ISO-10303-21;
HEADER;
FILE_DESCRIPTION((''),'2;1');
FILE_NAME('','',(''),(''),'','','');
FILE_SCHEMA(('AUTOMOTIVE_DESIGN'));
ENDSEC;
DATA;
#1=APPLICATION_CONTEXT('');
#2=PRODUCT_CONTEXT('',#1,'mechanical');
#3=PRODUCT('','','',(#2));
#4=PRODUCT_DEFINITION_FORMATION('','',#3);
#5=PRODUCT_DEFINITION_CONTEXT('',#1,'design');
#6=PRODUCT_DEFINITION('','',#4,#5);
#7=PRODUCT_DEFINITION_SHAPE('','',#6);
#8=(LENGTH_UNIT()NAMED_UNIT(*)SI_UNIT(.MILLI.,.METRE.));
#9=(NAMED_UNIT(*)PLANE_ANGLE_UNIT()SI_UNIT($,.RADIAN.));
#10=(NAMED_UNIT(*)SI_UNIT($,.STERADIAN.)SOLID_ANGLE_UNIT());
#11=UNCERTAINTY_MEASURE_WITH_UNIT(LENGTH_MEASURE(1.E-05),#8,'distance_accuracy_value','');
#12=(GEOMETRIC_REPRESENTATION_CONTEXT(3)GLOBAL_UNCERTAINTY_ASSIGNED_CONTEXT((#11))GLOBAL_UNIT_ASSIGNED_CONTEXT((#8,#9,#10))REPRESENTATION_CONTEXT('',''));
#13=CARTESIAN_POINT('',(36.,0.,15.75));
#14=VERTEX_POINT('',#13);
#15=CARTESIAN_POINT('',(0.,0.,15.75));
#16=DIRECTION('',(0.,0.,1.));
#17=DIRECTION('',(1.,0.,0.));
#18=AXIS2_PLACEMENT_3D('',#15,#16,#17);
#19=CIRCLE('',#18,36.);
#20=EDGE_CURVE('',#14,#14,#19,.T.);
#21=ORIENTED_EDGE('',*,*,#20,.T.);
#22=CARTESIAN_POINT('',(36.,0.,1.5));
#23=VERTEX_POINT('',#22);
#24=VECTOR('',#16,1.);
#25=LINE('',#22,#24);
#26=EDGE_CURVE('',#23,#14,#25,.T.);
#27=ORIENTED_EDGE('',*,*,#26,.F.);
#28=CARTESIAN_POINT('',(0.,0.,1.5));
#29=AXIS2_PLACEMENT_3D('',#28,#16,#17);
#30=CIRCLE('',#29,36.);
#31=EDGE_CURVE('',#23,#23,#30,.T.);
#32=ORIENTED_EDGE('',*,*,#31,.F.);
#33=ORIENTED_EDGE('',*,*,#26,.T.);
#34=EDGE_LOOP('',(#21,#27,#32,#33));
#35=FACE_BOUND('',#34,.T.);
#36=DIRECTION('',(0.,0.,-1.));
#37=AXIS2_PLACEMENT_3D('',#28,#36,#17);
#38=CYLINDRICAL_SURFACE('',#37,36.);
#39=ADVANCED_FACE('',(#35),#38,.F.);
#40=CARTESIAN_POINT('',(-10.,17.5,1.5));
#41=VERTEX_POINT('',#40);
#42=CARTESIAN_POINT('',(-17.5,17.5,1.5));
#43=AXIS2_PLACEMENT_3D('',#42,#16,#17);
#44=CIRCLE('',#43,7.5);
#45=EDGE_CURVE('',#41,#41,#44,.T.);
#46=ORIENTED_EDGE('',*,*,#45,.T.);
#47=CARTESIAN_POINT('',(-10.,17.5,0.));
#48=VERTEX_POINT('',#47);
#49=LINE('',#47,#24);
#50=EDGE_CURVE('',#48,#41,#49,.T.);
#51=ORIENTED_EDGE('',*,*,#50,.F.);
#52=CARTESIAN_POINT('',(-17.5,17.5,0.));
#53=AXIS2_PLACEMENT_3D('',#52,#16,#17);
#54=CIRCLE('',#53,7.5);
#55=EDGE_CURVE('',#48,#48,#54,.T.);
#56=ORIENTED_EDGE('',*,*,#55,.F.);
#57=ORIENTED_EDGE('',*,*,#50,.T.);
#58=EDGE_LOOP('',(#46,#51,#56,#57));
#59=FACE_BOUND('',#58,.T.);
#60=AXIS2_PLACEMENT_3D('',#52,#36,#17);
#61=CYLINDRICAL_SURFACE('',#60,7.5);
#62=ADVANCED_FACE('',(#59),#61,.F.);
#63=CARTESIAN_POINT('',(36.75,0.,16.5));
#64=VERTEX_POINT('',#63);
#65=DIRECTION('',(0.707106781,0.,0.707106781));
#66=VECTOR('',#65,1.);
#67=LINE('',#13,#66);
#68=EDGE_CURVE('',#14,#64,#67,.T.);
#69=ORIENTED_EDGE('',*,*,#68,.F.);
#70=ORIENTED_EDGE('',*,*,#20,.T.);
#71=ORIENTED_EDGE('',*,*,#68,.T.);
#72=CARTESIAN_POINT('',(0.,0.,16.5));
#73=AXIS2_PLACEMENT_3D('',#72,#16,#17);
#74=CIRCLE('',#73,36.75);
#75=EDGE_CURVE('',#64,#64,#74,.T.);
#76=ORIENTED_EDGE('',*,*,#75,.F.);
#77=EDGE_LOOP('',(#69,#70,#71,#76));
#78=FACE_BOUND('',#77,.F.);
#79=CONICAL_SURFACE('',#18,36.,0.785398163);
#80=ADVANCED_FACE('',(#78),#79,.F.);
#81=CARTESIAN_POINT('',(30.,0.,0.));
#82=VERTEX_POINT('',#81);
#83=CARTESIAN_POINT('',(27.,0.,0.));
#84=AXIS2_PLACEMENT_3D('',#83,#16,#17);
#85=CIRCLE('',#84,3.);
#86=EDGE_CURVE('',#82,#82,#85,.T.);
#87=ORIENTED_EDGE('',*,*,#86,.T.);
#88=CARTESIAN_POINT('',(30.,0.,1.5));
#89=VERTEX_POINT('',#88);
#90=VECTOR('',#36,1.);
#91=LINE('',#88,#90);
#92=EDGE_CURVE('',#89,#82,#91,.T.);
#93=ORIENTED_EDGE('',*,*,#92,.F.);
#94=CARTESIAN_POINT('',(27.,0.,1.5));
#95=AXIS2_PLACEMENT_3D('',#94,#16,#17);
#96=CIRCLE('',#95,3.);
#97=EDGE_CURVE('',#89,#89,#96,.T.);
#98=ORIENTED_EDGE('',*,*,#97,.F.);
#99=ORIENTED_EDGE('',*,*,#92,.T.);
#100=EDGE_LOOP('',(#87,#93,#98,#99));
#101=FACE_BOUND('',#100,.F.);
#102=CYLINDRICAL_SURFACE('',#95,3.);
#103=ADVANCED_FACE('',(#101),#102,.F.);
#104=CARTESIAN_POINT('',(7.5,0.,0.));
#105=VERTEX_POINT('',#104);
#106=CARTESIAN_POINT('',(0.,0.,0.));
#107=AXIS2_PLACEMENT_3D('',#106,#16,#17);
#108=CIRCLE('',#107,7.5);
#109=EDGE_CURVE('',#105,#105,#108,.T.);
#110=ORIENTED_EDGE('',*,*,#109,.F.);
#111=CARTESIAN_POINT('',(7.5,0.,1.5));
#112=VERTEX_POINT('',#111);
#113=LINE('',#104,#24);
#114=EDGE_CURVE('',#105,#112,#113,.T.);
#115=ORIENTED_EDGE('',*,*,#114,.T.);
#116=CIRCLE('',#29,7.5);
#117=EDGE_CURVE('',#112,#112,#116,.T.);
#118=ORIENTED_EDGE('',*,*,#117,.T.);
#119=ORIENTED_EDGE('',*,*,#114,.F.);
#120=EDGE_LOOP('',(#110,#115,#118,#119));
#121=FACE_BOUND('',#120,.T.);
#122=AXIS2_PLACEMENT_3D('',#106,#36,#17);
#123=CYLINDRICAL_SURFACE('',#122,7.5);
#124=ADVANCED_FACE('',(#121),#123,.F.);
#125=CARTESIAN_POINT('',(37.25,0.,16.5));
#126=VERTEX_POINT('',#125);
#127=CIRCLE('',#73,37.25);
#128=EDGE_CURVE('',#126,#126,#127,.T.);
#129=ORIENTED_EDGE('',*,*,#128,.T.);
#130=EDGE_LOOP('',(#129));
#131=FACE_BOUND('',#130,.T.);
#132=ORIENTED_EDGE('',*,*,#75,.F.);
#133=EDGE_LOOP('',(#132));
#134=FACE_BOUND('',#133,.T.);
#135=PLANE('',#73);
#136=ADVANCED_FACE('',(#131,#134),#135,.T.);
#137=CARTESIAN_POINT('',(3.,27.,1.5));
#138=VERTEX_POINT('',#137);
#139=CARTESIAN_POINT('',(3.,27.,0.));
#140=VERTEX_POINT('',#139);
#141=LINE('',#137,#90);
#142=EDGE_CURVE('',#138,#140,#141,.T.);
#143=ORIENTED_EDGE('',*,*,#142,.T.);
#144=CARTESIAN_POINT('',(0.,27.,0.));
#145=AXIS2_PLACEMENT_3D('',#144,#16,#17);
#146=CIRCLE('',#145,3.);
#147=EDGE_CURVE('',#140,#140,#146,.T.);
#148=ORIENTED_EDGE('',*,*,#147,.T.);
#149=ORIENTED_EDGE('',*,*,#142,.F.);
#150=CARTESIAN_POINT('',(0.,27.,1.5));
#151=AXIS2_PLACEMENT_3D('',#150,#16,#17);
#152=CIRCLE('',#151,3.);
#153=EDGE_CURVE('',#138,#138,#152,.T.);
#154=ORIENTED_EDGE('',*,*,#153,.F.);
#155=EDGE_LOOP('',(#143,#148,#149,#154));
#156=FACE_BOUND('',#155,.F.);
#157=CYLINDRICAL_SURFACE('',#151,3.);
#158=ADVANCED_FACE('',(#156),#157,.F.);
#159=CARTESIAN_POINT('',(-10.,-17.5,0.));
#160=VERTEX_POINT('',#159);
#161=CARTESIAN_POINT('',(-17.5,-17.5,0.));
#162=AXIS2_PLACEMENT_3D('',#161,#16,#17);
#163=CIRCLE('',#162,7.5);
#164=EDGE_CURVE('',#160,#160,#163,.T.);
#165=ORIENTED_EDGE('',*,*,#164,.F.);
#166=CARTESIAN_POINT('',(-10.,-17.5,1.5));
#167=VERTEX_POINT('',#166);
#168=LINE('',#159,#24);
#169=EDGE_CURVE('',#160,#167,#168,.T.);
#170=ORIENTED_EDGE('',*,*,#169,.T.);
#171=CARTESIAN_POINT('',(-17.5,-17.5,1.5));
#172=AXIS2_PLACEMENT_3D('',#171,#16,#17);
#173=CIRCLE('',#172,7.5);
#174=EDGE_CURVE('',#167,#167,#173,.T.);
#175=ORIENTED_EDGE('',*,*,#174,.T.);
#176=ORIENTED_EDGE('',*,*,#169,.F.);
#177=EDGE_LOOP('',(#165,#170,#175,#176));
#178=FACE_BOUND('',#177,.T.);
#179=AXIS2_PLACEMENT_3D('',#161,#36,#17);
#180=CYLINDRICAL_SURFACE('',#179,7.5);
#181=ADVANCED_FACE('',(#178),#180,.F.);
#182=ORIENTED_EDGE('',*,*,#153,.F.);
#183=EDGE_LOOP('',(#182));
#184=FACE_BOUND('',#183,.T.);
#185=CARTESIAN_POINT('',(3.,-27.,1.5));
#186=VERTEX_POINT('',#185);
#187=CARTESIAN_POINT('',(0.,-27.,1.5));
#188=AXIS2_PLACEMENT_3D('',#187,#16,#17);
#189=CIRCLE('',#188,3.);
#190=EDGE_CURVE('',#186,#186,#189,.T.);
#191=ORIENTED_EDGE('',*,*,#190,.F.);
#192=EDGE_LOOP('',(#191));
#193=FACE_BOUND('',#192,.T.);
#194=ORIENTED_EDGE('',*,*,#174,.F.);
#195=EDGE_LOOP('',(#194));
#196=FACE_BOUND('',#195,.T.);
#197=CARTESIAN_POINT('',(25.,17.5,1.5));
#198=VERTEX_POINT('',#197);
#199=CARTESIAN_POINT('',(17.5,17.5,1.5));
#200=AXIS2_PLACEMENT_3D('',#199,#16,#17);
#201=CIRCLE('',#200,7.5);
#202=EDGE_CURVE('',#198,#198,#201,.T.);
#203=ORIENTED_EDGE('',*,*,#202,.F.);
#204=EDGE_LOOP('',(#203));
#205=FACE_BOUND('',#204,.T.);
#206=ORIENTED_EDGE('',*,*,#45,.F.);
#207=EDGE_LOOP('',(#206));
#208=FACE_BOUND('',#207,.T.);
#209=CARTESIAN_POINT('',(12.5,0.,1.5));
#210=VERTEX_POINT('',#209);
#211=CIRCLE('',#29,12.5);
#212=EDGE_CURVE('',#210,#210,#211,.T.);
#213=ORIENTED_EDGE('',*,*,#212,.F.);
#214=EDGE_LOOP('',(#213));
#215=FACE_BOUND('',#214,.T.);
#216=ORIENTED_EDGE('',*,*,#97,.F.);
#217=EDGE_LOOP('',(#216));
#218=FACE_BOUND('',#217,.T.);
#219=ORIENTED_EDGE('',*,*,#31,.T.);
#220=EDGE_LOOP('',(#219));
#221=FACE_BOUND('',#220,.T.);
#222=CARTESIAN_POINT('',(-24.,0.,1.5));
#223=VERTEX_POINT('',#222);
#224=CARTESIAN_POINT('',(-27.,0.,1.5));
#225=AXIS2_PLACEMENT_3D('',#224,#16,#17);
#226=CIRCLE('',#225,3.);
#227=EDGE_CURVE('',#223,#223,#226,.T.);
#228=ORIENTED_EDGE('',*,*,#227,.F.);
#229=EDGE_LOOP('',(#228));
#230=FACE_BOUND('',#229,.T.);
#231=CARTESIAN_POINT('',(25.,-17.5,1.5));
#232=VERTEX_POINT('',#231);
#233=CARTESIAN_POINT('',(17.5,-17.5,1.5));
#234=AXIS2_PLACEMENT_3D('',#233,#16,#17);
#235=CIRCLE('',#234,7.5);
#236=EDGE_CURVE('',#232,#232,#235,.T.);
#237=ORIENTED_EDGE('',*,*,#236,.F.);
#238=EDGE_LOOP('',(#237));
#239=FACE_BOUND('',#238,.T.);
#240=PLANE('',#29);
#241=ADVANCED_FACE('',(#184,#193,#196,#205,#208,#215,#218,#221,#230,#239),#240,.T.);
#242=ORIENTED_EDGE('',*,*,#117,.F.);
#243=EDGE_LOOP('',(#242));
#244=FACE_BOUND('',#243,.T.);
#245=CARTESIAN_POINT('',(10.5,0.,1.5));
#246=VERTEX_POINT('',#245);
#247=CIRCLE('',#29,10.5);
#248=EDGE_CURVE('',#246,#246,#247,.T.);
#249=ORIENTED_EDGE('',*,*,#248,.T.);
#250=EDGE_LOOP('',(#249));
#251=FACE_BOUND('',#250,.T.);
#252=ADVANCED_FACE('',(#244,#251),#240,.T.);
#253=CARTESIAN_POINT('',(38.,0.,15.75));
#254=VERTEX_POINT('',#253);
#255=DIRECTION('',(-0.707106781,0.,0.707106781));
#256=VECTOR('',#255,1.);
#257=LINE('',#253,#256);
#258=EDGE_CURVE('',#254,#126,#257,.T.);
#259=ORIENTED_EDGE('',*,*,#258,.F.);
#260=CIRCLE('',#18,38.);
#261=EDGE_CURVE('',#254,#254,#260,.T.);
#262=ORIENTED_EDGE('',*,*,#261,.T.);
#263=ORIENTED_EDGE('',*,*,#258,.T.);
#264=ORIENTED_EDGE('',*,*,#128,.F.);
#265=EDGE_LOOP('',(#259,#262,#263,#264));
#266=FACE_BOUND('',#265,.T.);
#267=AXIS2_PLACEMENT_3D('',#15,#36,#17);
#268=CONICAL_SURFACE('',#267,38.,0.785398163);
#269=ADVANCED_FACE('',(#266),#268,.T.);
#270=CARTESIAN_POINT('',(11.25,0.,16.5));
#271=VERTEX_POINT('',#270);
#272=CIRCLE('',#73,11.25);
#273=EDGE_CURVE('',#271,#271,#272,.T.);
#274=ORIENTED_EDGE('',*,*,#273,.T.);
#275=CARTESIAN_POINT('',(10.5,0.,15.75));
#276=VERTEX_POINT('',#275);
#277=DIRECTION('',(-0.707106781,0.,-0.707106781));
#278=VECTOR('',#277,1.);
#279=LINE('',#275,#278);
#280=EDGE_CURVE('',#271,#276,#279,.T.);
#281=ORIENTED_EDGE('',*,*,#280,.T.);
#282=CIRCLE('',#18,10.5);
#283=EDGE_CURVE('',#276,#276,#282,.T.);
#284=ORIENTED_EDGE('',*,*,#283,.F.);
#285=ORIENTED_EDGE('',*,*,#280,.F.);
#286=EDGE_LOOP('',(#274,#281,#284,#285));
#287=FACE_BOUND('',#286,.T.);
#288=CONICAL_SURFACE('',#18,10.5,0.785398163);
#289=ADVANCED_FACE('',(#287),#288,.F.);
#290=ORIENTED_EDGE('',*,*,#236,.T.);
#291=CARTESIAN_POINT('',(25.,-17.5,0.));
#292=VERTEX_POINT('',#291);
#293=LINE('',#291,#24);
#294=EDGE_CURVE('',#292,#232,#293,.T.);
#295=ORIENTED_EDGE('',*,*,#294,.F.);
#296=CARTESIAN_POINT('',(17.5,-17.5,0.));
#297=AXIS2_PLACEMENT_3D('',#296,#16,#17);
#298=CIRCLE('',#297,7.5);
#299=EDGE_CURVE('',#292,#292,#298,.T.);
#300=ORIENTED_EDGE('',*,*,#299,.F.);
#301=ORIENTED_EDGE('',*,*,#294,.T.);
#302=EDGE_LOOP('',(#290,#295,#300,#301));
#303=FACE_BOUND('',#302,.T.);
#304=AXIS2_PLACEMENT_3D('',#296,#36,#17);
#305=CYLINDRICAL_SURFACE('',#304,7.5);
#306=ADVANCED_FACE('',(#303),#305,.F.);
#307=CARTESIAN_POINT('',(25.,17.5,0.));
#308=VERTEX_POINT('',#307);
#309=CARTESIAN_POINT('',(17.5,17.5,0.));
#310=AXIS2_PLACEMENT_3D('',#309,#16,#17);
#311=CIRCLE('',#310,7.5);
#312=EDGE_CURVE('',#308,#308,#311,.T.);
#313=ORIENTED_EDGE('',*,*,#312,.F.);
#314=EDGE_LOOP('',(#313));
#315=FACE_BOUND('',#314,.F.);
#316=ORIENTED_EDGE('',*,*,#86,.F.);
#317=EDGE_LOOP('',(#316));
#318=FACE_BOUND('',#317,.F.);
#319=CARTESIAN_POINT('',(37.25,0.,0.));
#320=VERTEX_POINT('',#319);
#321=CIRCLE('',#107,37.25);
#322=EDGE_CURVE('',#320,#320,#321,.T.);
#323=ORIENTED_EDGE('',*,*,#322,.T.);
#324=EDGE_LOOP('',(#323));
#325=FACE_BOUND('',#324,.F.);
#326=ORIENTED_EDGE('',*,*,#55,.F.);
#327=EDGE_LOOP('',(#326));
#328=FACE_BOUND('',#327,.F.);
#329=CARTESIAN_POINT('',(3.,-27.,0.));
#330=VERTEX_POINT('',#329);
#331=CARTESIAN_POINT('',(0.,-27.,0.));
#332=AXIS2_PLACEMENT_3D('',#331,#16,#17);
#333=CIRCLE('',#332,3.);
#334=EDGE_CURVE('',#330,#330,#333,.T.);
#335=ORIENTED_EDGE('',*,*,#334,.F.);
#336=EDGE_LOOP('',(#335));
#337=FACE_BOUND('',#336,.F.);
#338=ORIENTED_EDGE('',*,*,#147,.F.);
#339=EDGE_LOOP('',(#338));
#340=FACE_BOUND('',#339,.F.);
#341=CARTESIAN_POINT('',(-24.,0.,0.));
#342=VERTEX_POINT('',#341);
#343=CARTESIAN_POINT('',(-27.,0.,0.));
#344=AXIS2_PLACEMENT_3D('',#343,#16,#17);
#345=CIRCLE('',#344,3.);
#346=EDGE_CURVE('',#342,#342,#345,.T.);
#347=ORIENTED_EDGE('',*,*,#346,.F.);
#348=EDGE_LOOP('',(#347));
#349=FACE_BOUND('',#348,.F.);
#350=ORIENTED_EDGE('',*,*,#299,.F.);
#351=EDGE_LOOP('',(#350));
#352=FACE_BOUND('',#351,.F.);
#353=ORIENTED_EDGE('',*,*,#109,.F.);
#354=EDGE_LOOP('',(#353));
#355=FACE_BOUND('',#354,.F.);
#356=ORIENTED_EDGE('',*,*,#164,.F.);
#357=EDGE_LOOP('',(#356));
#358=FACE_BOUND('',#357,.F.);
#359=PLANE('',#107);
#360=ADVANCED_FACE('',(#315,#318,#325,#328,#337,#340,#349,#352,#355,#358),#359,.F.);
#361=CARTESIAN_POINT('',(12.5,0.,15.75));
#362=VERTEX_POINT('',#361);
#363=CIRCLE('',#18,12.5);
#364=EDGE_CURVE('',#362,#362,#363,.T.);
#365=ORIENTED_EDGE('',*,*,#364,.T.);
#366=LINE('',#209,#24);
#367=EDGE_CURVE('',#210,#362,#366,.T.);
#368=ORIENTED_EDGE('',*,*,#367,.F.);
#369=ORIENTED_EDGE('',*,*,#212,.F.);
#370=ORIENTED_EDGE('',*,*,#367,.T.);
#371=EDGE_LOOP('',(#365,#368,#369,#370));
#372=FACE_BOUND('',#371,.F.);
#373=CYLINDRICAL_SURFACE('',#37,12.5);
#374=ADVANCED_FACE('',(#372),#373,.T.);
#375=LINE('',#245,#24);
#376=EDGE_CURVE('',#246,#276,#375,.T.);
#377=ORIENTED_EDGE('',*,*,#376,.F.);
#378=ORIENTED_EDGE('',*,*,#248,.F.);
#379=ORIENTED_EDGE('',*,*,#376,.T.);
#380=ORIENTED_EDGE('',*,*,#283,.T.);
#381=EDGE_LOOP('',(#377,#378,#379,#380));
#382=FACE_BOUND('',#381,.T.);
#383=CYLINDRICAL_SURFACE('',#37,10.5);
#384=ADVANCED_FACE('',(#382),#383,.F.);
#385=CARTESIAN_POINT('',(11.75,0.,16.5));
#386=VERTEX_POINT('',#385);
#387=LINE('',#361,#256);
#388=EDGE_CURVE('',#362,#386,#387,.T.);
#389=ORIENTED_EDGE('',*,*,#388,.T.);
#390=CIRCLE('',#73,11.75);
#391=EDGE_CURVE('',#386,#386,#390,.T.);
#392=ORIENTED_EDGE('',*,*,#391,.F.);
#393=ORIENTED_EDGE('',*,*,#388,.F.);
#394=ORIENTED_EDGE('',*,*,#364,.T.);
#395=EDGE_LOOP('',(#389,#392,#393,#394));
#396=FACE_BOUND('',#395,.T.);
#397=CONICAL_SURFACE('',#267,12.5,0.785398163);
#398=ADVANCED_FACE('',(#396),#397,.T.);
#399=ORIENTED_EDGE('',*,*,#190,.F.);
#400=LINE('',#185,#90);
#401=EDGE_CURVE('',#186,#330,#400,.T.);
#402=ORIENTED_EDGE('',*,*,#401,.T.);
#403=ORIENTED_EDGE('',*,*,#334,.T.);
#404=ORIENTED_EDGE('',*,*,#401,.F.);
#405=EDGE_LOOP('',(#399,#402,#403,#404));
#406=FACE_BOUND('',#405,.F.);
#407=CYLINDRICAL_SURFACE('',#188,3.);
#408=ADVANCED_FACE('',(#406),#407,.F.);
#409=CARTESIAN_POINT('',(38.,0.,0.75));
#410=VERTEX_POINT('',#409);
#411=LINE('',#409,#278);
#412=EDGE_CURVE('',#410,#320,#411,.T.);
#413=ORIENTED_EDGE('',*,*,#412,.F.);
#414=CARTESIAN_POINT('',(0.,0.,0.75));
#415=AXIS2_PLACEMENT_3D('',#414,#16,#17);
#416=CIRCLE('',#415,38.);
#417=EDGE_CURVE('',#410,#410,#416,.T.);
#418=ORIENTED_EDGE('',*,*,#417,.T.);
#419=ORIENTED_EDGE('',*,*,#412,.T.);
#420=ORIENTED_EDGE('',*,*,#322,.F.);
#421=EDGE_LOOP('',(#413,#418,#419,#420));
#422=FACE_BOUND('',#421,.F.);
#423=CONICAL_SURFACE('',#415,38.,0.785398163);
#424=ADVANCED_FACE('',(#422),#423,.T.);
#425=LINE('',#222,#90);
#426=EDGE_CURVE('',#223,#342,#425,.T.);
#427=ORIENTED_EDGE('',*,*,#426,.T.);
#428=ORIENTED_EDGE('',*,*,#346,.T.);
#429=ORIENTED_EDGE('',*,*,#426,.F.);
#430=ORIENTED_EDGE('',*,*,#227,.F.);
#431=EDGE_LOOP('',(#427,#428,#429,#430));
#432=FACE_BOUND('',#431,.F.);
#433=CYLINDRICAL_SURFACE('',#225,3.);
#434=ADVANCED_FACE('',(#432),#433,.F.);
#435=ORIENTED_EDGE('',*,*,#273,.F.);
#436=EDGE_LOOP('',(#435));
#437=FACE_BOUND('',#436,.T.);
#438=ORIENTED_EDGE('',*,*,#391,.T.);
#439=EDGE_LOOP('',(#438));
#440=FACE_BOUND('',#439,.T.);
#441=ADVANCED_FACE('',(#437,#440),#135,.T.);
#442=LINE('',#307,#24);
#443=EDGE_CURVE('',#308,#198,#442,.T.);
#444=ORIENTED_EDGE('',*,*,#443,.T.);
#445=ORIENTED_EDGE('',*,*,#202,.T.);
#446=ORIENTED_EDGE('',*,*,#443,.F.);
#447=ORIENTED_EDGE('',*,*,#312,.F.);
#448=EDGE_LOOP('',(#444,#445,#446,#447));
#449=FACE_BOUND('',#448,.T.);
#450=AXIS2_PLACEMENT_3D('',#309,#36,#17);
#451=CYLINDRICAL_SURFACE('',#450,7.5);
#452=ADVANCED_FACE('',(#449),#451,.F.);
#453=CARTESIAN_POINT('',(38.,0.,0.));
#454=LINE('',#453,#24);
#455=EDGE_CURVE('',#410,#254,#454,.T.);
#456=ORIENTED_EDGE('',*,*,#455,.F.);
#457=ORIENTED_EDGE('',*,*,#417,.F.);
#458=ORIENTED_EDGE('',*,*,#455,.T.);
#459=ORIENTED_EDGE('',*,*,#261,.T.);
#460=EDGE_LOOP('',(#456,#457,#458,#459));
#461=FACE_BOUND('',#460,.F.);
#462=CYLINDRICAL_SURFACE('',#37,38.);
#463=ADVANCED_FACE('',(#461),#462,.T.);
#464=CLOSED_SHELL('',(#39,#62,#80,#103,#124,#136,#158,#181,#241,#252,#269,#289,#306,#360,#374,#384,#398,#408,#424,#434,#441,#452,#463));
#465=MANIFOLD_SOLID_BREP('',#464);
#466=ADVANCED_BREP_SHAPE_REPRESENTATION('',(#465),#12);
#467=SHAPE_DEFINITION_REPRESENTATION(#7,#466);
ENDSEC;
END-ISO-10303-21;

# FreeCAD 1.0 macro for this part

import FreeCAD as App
import Part
import Sketcher
from FreeCAD import Vector


def edges_at(feature, points):
    """Names of the edges that pass closest to the given points."""
    edges = feature.Shape.Edges
    near = lambda p: min(range(len(edges)), key=lambda i: edges[i].distToShape(Part.Vertex(*p))[0])
    return sorted({f"Edge{near(p) + 1}" for p in points})

doc = App.newDocument("Part")
params = doc.addObject("Spreadsheet::Sheet", "Params")
for row, (alias, value) in enumerate([
    ("sketch1_diameter", "76 mm"),
    ("sketch1_diameter2", "15 mm"),
    ("pad1_length", "1.5 mm"),
    ("sketch2_diameter", "76 mm"),
    ("sketch2_diameter2", "72 mm"),
    ("sketch2_diameter3", "25 mm"),
    ("sketch2_diameter4", "21 mm"),
    ("pad2_length", "15 mm"),
    ("chamfer_size", "0.75 mm"),
    ("sketch3_diameter", "6 mm"),
], start=1):
    params.set(f"A{row}", alias)
    params.set(f"B{row}", "=" + value)
    params.setAlias(f"B{row}", alias)

body = doc.addObject("PartDesign::Body", "Body")

# Sketch on XY plane
sketch1 = body.newObject("Sketcher::SketchObject", "Sketch")
sketch1.AttachmentSupport = (doc.getObject("XY_Plane"), [""])
sketch1.MapMode = "FlatFace"
sketch1.addGeometry([
    Part.Circle(Vector(0, 0, 0), Vector(0, 0, 1), 38),  # 0
    Part.Circle(Vector(-17.5, -17.5, 0), Vector(0, 0, 1), 7.5),  # 1
    Part.Circle(Vector(17.5, -17.5, 0), Vector(0, 0, 1), 7.5),  # 2
    Part.Circle(Vector(-17.5, 17.5, 0), Vector(0, 0, 1), 7.5),  # 3
    Part.Circle(Vector(0, 0, 0), Vector(0, 0, 1), 7.5),  # 4
    Part.Circle(Vector(17.5, 17.5, 0), Vector(0, 0, 1), 7.5),  # 5
], False)
sketch1.addConstraint([
    Sketcher.Constraint("Coincident", 0, 3, -1, 1),
    Sketcher.Constraint("Coincident", 4, 3, -1, 1),
    Sketcher.Constraint("Equal", 1, 2),
    Sketcher.Constraint("Equal", 2, 3),
    Sketcher.Constraint("Equal", 3, 4),
    Sketcher.Constraint("Equal", 4, 5),
    Sketcher.Constraint("Symmetric", 2, 3, 3, 3, -1, 1),
    Sketcher.Constraint("Symmetric", 1, 3, 5, 3, -1, 1),
    Sketcher.Constraint("Symmetric", 1, 3, 2, 3, -2),
    Sketcher.Constraint("Diameter", 0, 76.0),
    Sketcher.Constraint("Diameter", 1, 15.0),
    Sketcher.Constraint("DistanceX", 1, 3, 2, 3, 35.0),
    Sketcher.Constraint("DistanceY", 1, 3, 3, 3, 35.0),
])
sketch1.setExpression("Constraints[9]", "Params.sketch1_diameter")
sketch1.setExpression("Constraints[10]", "Params.sketch1_diameter2")
pad1 = body.newObject("PartDesign::Pad", "Pad")
pad1.Profile = sketch1
pad1.setExpression("Length", "Params.pad1_length")

# Sketch on XY plane
sketch2 = body.newObject("Sketcher::SketchObject", "Sketch001")
sketch2.AttachmentSupport = (doc.getObject("XY_Plane"), [""])
sketch2.MapMode = "FlatFace"
sketch2.AttachmentOffset = App.Placement(Vector(0, 0, 1.5), App.Rotation())
sketch2.addGeometry([
    Part.Circle(Vector(0, 0, 0), Vector(0, 0, 1), 38),
    Part.Circle(Vector(0, 0, 0), Vector(0, 0, 1), 36),
    Part.Circle(Vector(0, 0, 0), Vector(0, 0, 1), 12.5),
    Part.Circle(Vector(0, 0, 0), Vector(0, 0, 1), 10.5),
], False)
sketch2.addConstraint([
    Sketcher.Constraint("Coincident", 0, 3, -1, 1),
    Sketcher.Constraint("Coincident", 1, 3, -1, 1),
    Sketcher.Constraint("Coincident", 2, 3, -1, 1),
    Sketcher.Constraint("Coincident", 3, 3, -1, 1),
    Sketcher.Constraint("Diameter", 0, 76.0),
    Sketcher.Constraint("Diameter", 1, 72.0),
    Sketcher.Constraint("Diameter", 2, 25.0),
    Sketcher.Constraint("Diameter", 3, 21.0),
])
sketch2.setExpression("Constraints[4]", "Params.sketch2_diameter")
sketch2.setExpression("Constraints[5]", "Params.sketch2_diameter2")
sketch2.setExpression("Constraints[6]", "Params.sketch2_diameter3")
sketch2.setExpression("Constraints[7]", "Params.sketch2_diameter4")
pad2 = body.newObject("PartDesign::Pad", "Pad001")
pad2.Profile = sketch2
pad2.setExpression("Length", "Params.pad2_length")
doc.recompute()

chamfer = body.newObject("PartDesign::Chamfer", "Chamfer")
chamfer.Base = (pad2, edges_at(pad2, [
    (-38, 0, 0),
    (-38, 0, 16.5),
    (-36, 0, 16.5),
    (-12.5, 0, 16.5),
    (-10.5, 0, 16.5),
]))
chamfer.setExpression("Size", "Params.chamfer_size")

# Sketch on XY plane
sketch3 = body.newObject("Sketcher::SketchObject", "Sketch002")
sketch3.AttachmentSupport = (doc.getObject("XY_Plane"), [""])
sketch3.MapMode = "FlatFace"
sketch3.AttachmentOffset = App.Placement(Vector(0, 0, 1.5), App.Rotation())
sketch3.addGeometry([
    Part.Circle(Vector(-27, 0, 0), Vector(0, 0, 1), 3),
    Part.Circle(Vector(0, -27, 0), Vector(0, 0, 1), 3),
    Part.Circle(Vector(27, 0, 0), Vector(0, 0, 1), 3),
    Part.Circle(Vector(0, 27, 0), Vector(0, 0, 1), 3),
], False)
sketch3.addConstraint([
    Sketcher.Constraint("Equal", 0, 1),
    Sketcher.Constraint("Equal", 1, 2),
    Sketcher.Constraint("Equal", 2, 3),
    Sketcher.Constraint("Symmetric", 0, 3, 2, 3, -1, 1),
    Sketcher.Constraint("Symmetric", 1, 3, 3, 3, -1, 1),
    Sketcher.Constraint("PointOnObject", 0, 3, -1),
    Sketcher.Constraint("PointOnObject", 1, 3, -2),
    Sketcher.Constraint("Diameter", 0, 6.0),
    Sketcher.Constraint("DistanceX", 0, 3, -1, 1, 27.0),
    Sketcher.Constraint("DistanceY", 1, 3, -1, 1, 27.0),
])
sketch3.setExpression("Constraints[7]", "Params.sketch3_diameter")
pocket1 = body.newObject("PartDesign::Pocket", "Pocket")
pocket1.Profile = sketch3
pocket1.Type = "ThroughAll"

doc.recompute()
